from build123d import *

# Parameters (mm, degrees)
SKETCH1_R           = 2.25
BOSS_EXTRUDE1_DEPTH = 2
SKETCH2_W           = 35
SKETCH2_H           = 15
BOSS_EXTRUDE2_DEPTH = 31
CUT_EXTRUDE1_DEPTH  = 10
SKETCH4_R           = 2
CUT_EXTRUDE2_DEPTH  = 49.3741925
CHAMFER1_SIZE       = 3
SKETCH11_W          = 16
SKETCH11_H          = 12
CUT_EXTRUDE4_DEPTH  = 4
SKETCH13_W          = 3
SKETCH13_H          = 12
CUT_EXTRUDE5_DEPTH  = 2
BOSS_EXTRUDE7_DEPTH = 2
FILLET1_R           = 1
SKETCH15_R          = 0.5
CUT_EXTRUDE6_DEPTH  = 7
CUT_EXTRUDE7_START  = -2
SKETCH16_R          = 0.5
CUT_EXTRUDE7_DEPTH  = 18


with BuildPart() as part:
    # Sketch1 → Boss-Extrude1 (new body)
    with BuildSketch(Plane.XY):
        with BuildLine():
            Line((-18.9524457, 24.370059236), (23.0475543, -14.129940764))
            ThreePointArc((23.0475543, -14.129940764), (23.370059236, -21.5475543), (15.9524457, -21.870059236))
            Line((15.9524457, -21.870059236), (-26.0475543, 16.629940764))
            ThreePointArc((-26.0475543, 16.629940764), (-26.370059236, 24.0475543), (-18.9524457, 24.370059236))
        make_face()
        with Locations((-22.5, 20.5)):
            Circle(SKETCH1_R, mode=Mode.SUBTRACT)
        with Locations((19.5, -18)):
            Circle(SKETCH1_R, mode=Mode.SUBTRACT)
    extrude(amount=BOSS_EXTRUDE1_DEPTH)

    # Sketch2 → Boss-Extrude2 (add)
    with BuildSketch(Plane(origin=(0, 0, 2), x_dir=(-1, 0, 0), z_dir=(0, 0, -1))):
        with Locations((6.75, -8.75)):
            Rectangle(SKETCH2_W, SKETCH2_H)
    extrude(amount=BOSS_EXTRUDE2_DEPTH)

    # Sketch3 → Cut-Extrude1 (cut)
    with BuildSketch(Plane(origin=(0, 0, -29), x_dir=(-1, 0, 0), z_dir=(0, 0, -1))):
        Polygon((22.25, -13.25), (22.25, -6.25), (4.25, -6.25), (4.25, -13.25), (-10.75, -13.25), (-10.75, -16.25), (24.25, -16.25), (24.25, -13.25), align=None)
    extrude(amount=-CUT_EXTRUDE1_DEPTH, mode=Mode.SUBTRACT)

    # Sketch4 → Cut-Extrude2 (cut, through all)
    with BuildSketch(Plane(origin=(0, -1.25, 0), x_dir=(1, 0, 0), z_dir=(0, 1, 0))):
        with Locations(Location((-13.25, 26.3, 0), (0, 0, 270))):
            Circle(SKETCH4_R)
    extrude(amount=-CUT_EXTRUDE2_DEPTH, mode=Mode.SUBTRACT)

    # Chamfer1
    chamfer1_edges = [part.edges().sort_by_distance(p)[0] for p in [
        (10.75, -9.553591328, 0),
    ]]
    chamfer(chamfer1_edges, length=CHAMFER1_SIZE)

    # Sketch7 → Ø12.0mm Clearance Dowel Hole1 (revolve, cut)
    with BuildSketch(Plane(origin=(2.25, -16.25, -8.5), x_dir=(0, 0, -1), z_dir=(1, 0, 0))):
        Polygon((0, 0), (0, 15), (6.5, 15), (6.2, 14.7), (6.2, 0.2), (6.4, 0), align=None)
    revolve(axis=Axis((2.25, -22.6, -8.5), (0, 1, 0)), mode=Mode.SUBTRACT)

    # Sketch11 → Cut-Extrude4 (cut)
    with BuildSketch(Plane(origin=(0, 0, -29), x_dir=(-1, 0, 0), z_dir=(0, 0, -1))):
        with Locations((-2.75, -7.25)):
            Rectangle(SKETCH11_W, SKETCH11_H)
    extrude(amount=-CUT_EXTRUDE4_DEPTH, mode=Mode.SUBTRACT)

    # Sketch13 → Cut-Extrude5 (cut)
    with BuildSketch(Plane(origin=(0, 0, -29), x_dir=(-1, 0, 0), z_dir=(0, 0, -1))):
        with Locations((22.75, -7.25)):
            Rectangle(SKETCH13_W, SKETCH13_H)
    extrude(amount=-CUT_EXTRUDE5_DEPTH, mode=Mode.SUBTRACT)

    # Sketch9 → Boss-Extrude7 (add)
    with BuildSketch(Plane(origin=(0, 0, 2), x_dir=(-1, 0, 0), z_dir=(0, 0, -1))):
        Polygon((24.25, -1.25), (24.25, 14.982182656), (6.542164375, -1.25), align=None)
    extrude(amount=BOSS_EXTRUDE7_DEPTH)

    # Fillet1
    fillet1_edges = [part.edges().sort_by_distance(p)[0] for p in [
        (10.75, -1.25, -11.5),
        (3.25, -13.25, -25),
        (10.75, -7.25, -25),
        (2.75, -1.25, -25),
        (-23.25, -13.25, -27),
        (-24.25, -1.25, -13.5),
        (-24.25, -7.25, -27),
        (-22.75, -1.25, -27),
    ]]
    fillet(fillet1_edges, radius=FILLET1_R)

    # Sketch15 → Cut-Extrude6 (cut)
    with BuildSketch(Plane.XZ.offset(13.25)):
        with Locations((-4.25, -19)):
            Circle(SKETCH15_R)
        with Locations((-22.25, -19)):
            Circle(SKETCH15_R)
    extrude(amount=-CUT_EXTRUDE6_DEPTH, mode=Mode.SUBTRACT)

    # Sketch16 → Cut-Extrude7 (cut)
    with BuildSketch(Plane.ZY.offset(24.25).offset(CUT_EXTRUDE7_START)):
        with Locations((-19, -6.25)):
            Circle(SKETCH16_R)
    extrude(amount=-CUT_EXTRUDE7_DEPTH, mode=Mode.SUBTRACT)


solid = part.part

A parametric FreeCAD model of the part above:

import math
import FreeCAD as App
import Part
import Sketcher
from FreeCAD import Vector
Q = App.Units.Quantity


def edges_at(feature, points):
    """Names of the edges that pass closest to the given points."""
    edges = feature.Shape.Edges
    near = lambda p: min(range(len(edges)), key=lambda i: edges[i].distToShape(Part.Vertex(*p))[0])
    return sorted({f"Edge{near(p) + 1}" for p in points})


def add_polygon(sketch, points):
    """Adds a closed chain of lines whose ends are joined by coincident constraints."""
    first, n = sketch.GeometryCount, len(points)
    for a, b in zip(points, points[1:] + points[:1]):
        sketch.addGeometry(Part.LineSegment(App.Vector(*a, 0), App.Vector(*b, 0)), False)
    for i in range(n):
        sketch.addConstraint(Sketcher.Constraint("Coincident", first + i, 2, first + (i + 1) % n, 1))

doc = App.newDocument("Part")
params = doc.addObject("Spreadsheet::Sheet", "Params")
for row, (alias, value) in enumerate([
    ("sketch1_diameter", "4.5 mm"),
    ("sketch1_radius", "5.25 mm"),
    ("pad1_length", "2 mm"),
    ("sketch2_width", "35 mm"),
    ("sketch2_height", "15 mm"),
    ("pad2_length", "31 mm"),
    ("sketch3_width", "18 mm"),
    ("sketch3_width2", "15 mm"),
    ("sketch3_width3", "35 mm"),
    ("sketch3_height", "7 mm"),
    ("sketch3_height2", "3 mm"),
    ("pocket1_length", "10 mm"),
    ("sketch4_diameter", "4 mm"),
    ("chamfer_size", "3 mm"),
    ("sketch5_width", "15 mm"),
    ("sketch5_width2", "14.5 mm"),
    ("sketch5_height", "6.4 mm"),
    ("sketch5_height2", "6.5 mm"),
    ("groove_angle", "360 deg"),
    ("sketch6_width", "16 mm"),
    ("sketch6_height", "12 mm"),
    ("pocket3_length", "4 mm"),
    ("sketch7_width", "3 mm"),
    ("sketch7_height", "12 mm"),
    ("pocket4_length", "2 mm"),
    ("pad3_length", "2 mm"),
    ("fillet_radius", "1 mm"),
    ("sketch9_diameter", "1 mm"),
    ("pocket5_length", "7 mm"),
    ("sketch10_diameter", "1 mm"),
    ("pocket6_length", "18 mm"),
], start=1):
    params.set(f"A{row}", alias)
    params.set(f"B{row}", "=" + value)
    params.setAlias(f"B{row}", alias)

body = doc.addObject("PartDesign::Body", "Body")

# Sketch on XY plane
sketch1 = body.newObject("Sketcher::SketchObject", "Sketch")
sketch1.AttachmentSupport = (doc.getObject("XY_Plane"), [""])
sketch1.MapMode = "FlatFace"
sketch1.addGeometry(Part.LineSegment(Vector(23, -14.1, 0), Vector(-19, 24.4, 0)), False)
sketch1.addGeometry(Part.ArcOfCircle(Part.Circle(Vector(-22.5, 20.5, 0), Vector(0, 0, 1), 5.2), math.radians(47), math.radians(227)), False)
sketch1.addGeometry(Part.LineSegment(Vector(-26, 16.6, 0), Vector(16, -21.9, 0)), False)
sketch1.addGeometry(Part.ArcOfCircle(Part.Circle(Vector(19.5, -18, 0), Vector(0, 0, 1), 5.2), math.radians(-133), math.radians(47)), False)
sketch1.addGeometry(Part.Circle(Vector(19.5, -18, 0), Vector(0, 0, 1), 2.2), False)
sketch1.addGeometry(Part.Circle(Vector(-22.5, 20.5, 0), Vector(0, 0, 1), 2.2), False)
sketch1.addConstraint(Sketcher.Constraint("Tangent", 0, 2, 1, 1))
sketch1.addConstraint(Sketcher.Constraint("Tangent", 1, 2, 2, 1))
sketch1.addConstraint(Sketcher.Constraint("Tangent", 2, 2, 3, 1))
sketch1.addConstraint(Sketcher.Constraint("Tangent", 3, 2, 0, 1))
sketch1.addConstraint(Sketcher.Constraint("Coincident", 4, 3, 3, 3))
sketch1.addConstraint(Sketcher.Constraint("Coincident", 5, 3, 1, 3))
sketch1.addConstraint(Sketcher.Constraint("Equal", 1, 3))
sketch1.addConstraint(Sketcher.Constraint("Equal", 4, 5))
sketch1.addConstraint(Sketcher.Constraint("Diameter", 4, 4.5))
sketch1.addConstraint(Sketcher.Constraint("Radius", 1, 5.25))
sketch1.addConstraint(Sketcher.Constraint("DistanceY", 3, 3, -1, 1, 18.0))
sketch1.addConstraint(Sketcher.Constraint("DistanceX", 1, 3, 3, 3, 42.0))
sketch1.addConstraint(Sketcher.Constraint("DistanceX", 1, 3, -1, 1, 22.5))
sketch1.addConstraint(Sketcher.Constraint("DistanceY", -1, 1, 1, 3, 20.5))
sketch1.setExpression("Constraints[8]", "Params.sketch1_diameter")
sketch1.setExpression("Constraints[9]", "Params.sketch1_radius")
pad1 = body.newObject("PartDesign::Pad", "Pad")
pad1.Profile = sketch1
pad1.setExpression("Length", "Params.pad1_length")

# Sketch on XY plane
sketch2 = body.newObject("Sketcher::SketchObject", "Sketch001")
sketch2.AttachmentSupport = (doc.getObject("XY_Plane"), [""])
sketch2.MapMode = "FlatFace"
sketch2.AttachmentOffset = App.Placement(Vector(0, 0, 2), App.Rotation())
add_polygon(sketch2, [(11, -1), (11, -16), (-24, -16), (-24, -1)])  # lines 0-3
sketch2.addConstraint(Sketcher.Constraint("Vertical", 0))
sketch2.addConstraint(Sketcher.Constraint("Horizontal", 1))
sketch2.addConstraint(Sketcher.Constraint("Vertical", 2))
sketch2.addConstraint(Sketcher.Constraint("Horizontal", 3))
sketch2.addConstraint(Sketcher.Constraint("DistanceX", 1, 2, 1, 1, 35.0))
sketch2.addConstraint(Sketcher.Constraint("DistanceY", 0, 2, 0, 1, 15.0))
sketch2.addConstraint(Sketcher.Constraint("DistanceX", -1, 1, 0, 2, 10.75))
sketch2.addConstraint(Sketcher.Constraint("DistanceY", 0, 2, -1, 1, 16.25))
sketch2.setExpression("Constraints[8]", "Params.sketch2_width")
sketch2.setExpression("Constraints[9]", "Params.sketch2_height")
pad2 = body.newObject("PartDesign::Pad", "Pad001")
pad2.Profile = sketch2
pad2.setExpression("Length", "Params.pad2_length")
pad2.Reversed = True

# Sketch on XY plane
sketch3 = body.newObject("Sketcher::SketchObject", "Sketch002")
sketch3.AttachmentSupport = (doc.getObject("XY_Plane"), [""])
sketch3.MapMode = "FlatFace"
sketch3.AttachmentOffset = App.Placement(Vector(0, 0, -29), App.Rotation())
add_polygon(sketch3, [(-22.2, -13.2), (-22.2, -6.2), (-4.2, -6.2), (-4.2, -13.2), (10.8, -13.2), (10.8, -16.2), (-24.2, -16.2), (-24.2, -13.2)])  # lines 0-7
sketch3.addConstraint(Sketcher.Constraint("Vertical", 0))
sketch3.addConstraint(Sketcher.Constraint("Horizontal", 1))
sketch3.addConstraint(Sketcher.Constraint("Vertical", 2))
sketch3.addConstraint(Sketcher.Constraint("Horizontal", 3))
sketch3.addConstraint(Sketcher.Constraint("Vertical", 4))
sketch3.addConstraint(Sketcher.Constraint("Horizontal", 5))
sketch3.addConstraint(Sketcher.Constraint("Vertical", 6))
sketch3.addConstraint(Sketcher.Constraint("Horizontal", 7))
sketch3.addConstraint(Sketcher.Constraint("Horizontal", 3, 2, 6, 2))
sketch3.addConstraint(Sketcher.Constraint("DistanceX", 1, 1, 1, 2, 18.0))
sketch3.addConstraint(Sketcher.Constraint("DistanceX", 3, 1, 3, 2, 15.0))
sketch3.addConstraint(Sketcher.Constraint("DistanceX", 5, 2, 5, 1, 35.0))
sketch3.addConstraint(Sketcher.Constraint("DistanceY", 0, 1, 0, 2, 7.0))
sketch3.addConstraint(Sketcher.Constraint("DistanceY", 4, 2, 4, 1, 3.0))
sketch3.addConstraint(Sketcher.Constraint("DistanceX", 0, 2, -1, 1, 22.25))
sketch3.addConstraint(Sketcher.Constraint("DistanceY", 0, 2, -1, 1, 6.25))
sketch3.setExpression("Constraints[17]", "Params.sketch3_width")
sketch3.setExpression("Constraints[18]", "Params.sketch3_width2")
sketch3.setExpression("Constraints[19]", "Params.sketch3_width3")
sketch3.setExpression("Constraints[20]", "Params.sketch3_height")
sketch3.setExpression("Constraints[21]", "Params.sketch3_height2")
pocket1 = body.newObject("PartDesign::Pocket", "Pocket")
pocket1.Profile = sketch3
pocket1.setExpression("Length", "Params.pocket1_length")
pocket1.Reversed = True

# Sketch on XZ plane
sketch4 = body.newObject("Sketcher::SketchObject", "Sketch003")
sketch4.AttachmentSupport = (doc.getObject("XZ_Plane"), [""])
sketch4.MapMode = "FlatFace"
sketch4.AttachmentOffset = App.Placement(Vector(0, 0, 1.25), App.Rotation())
sketch4.addGeometry(Part.Circle(Vector(-13.2, -26.3, 0), Vector(0, 0, 1), 2), False)
sketch4.addConstraint(Sketcher.Constraint("Diameter", 0, 4.0))
sketch4.addConstraint(Sketcher.Constraint("DistanceY", 0, 3, -1, 1, 26.3))
sketch4.addConstraint(Sketcher.Constraint("DistanceX", 0, 3, -1, 1, 13.25))
sketch4.setExpression("Constraints[0]", "Params.sketch4_diameter")
pocket2 = body.newObject("PartDesign::Pocket", "Pocket001")
pocket2.Profile = sketch4
pocket2.Type = "ThroughAll"
pocket2.Reversed = True
doc.recompute()

chamfer = body.newObject("PartDesign::Chamfer", "Chamfer")
chamfer.Base = (pocket2, edges_at(pocket2, [(10.75, -9.554, 0)]))
chamfer.setExpression("Size", "Params.chamfer_size")

# Sketch on YZ plane
sketch5 = body.newObject("Sketcher::SketchObject", "Sketch004")
sketch5.AttachmentSupport = (doc.getObject("YZ_Plane"), [""])
sketch5.MapMode = "FlatFace"
sketch5.AttachmentOffset = App.Placement(Vector(0, 0, 2.25), App.Rotation())
add_polygon(sketch5, [(-1.25, -8.5), (-16.25, -8.5), (-16.25, -14.9), (-16.05, -14.7), (-1.55, -14.7), (-1.25, -15)])  # lines 0-5
sketch5.addGeometry(Part.LineSegment(Vector(-16.25, -8.5, 0), Vector(-1.25, -8.5, 0)), True)  # axis
sketch5.addConstraint(Sketcher.Constraint("Horizontal", 0))
sketch5.addConstraint(Sketcher.Constraint("Vertical", 1))
sketch5.addConstraint(Sketcher.Constraint("Horizontal", 3))
sketch5.addConstraint(Sketcher.Constraint("Vertical", 5))
sketch5.addConstraint(Sketcher.Constraint("Horizontal", 6))
sketch5.addConstraint(Sketcher.Constraint("Coincident", 6, 1, 0, 2))
sketch5.addConstraint(Sketcher.Constraint("Perpendicular", 2, 4))
sketch5.addConstraint(Sketcher.Constraint("Vertical", 4, 2, 6, 2))
sketch5.addConstraint(Sketcher.Constraint("DistanceX", 0, 2, 0, 1, 15.0))
sketch5.addConstraint(Sketcher.Constraint("Angle", 2, Q("45 deg")))
sketch5.addConstraint(Sketcher.Constraint("DistanceX", 3, 1, 3, 2, 14.5))
sketch5.addConstraint(Sketcher.Constraint("DistanceY", 1, 2, 1, 1, 6.4))
sketch5.addConstraint(Sketcher.Constraint("DistanceY", 5, 1, 5, 2, 6.5))
sketch5.addConstraint(Sketcher.Constraint("DistanceY", 4, 2, -1, 1, 15.0))
sketch5.addConstraint(Sketcher.Constraint("DistanceX", 0, 2, -1, 1, 16.25))
sketch5.setExpression("Constraints[14]", "Params.sketch5_width")
sketch5.setExpression("Constraints[16]", "Params.sketch5_width2")
sketch5.setExpression("Constraints[17]", "Params.sketch5_height")
sketch5.setExpression("Constraints[18]", "Params.sketch5_height2")
groove = body.newObject("PartDesign::Groove", "Groove")
groove.Profile = sketch5
groove.ReferenceAxis = (sketch5, ["Axis0"])
groove.setExpression("Angle", "Params.groove_angle")

# Sketch on XY plane
sketch6 = body.newObject("Sketcher::SketchObject", "Sketch005")
sketch6.AttachmentSupport = (doc.getObject("XY_Plane"), [""])
sketch6.MapMode = "FlatFace"
sketch6.AttachmentOffset = App.Placement(Vector(0, 0, -29), App.Rotation())
add_polygon(sketch6, [(11, -1), (11, -13), (-5, -13), (-5, -1)])  # lines 0-3
sketch6.addConstraint(Sketcher.Constraint("Vertical", 0))
sketch6.addConstraint(Sketcher.Constraint("Horizontal", 1))
sketch6.addConstraint(Sketcher.Constraint("Vertical", 2))
sketch6.addConstraint(Sketcher.Constraint("Horizontal", 3))
sketch6.addConstraint(Sketcher.Constraint("DistanceX", 1, 2, 1, 1, 16.0))
sketch6.addConstraint(Sketcher.Constraint("DistanceY", 0, 2, 0, 1, 12.0))
sketch6.addConstraint(Sketcher.Constraint("DistanceX", -1, 1, 0, 2, 10.75))
sketch6.addConstraint(Sketcher.Constraint("DistanceY", 0, 2, -1, 1, 13.25))
sketch6.setExpression("Constraints[8]", "Params.sketch6_width")
sketch6.setExpression("Constraints[9]", "Params.sketch6_height")
pocket3 = body.newObject("PartDesign::Pocket", "Pocket002")
pocket3.Profile = sketch6
pocket3.setExpression("Length", "Params.pocket3_length")
pocket3.Reversed = True

# Sketch on XY plane
sketch7 = body.newObject("Sketcher::SketchObject", "Sketch006")
sketch7.AttachmentSupport = (doc.getObject("XY_Plane"), [""])
sketch7.MapMode = "FlatFace"
sketch7.AttachmentOffset = App.Placement(Vector(0, 0, -29), App.Rotation())
add_polygon(sketch7, [(-21.2, -1.2), (-21.2, -13.2), (-24.2, -13.2), (-24.2, -1.2)])  # lines 0-3
sketch7.addConstraint(Sketcher.Constraint("Vertical", 0))
sketch7.addConstraint(Sketcher.Constraint("Horizontal", 1))
sketch7.addConstraint(Sketcher.Constraint("Vertical", 2))
sketch7.addConstraint(Sketcher.Constraint("Horizontal", 3))
sketch7.addConstraint(Sketcher.Constraint("DistanceX", 1, 2, 1, 1, 3.0))
sketch7.addConstraint(Sketcher.Constraint("DistanceY", 0, 2, 0, 1, 12.0))
sketch7.addConstraint(Sketcher.Constraint("DistanceX", 0, 2, -1, 1, 21.25))
sketch7.addConstraint(Sketcher.Constraint("DistanceY", 0, 2, -1, 1, 13.25))
sketch7.setExpression("Constraints[8]", "Params.sketch7_width")
sketch7.setExpression("Constraints[9]", "Params.sketch7_height")
pocket4 = body.newObject("PartDesign::Pocket", "Pocket003")
pocket4.Profile = sketch7
pocket4.setExpression("Length", "Params.pocket4_length")
pocket4.Reversed = True

# Sketch on XY plane
sketch8 = body.newObject("Sketcher::SketchObject", "Sketch007")
sketch8.AttachmentSupport = (doc.getObject("XY_Plane"), [""])
sketch8.MapMode = "FlatFace"
sketch8.AttachmentOffset = App.Placement(Vector(0, 0, 2), App.Rotation())
add_polygon(sketch8, [(-24, -1), (-24, 15), (-7, -1)])  # lines 0-2
sketch8.addConstraint(Sketcher.Constraint("Vertical", 0))
sketch8.addConstraint(Sketcher.Constraint("Horizontal", 2))
sketch8.addConstraint(Sketcher.Constraint("DistanceX", 0, 2, -1, 1, 24.25))
sketch8.addConstraint(Sketcher.Constraint("DistanceY", 1, 2, -1, 1, 1.25))
sketch8.addConstraint(Sketcher.Constraint("Distance", 1, 24.02189))
sketch8.addConstraint(Sketcher.Constraint("DistanceX", 2, 2, 2, 1, 17.707836))
pad3 = body.newObject("PartDesign::Pad", "Pad002")
pad3.Profile = sketch8
pad3.setExpression("Length", "Params.pad3_length")
pad3.Reversed = True
doc.recompute()

fillet = body.newObject("PartDesign::Fillet", "Fillet")
fillet.Base = (pad3, edges_at(pad3, [
    (10.75, -1.25, -11.5),
    (3.25, -13.25, -25),
    (10.75, -7.25, -25),
    (2.75, -1.25, -25),
    (-23.25, -13.25, -27),
    (-24.25, -1.25, -13.5),
    (-24.25, -7.25, -27),
    (-22.75, -1.25, -27),
]))
fillet.setExpression("Radius", "Params.fillet_radius")

# Sketch on XZ plane
sketch9 = body.newObject("Sketcher::SketchObject", "Sketch008")
sketch9.AttachmentSupport = (doc.getObject("XZ_Plane"), [""])
sketch9.MapMode = "FlatFace"
sketch9.AttachmentOffset = App.Placement(Vector(0, 0, 13.25), App.Rotation())
sketch9.addGeometry(Part.Circle(Vector(-4.2, -19, 0), Vector(0, 0, 1), 0.5), False)
sketch9.addGeometry(Part.Circle(Vector(-22.2, -19, 0), Vector(0, 0, 1), 0.5), False)
sketch9.addConstraint(Sketcher.Constraint("Equal", 0, 1))
sketch9.addConstraint(Sketcher.Constraint("Horizontal", 0, 3, 1, 3))
sketch9.addConstraint(Sketcher.Constraint("Diameter", 0, 1.0))
sketch9.addConstraint(Sketcher.Constraint("DistanceY", 0, 3, -1, 1, 19.0))
sketch9.addConstraint(Sketcher.Constraint("DistanceX", 1, 3, 0, 3, 18.0))
sketch9.addConstraint(Sketcher.Constraint("DistanceX", 0, 3, -1, 1, 4.25))
sketch9.setExpression("Constraints[2]", "Params.sketch9_diameter")
pocket5 = body.newObject("PartDesign::Pocket", "Pocket004")
pocket5.Profile = sketch9
pocket5.setExpression("Length", "Params.pocket5_length")

# Sketch on YZ plane
sketch10 = body.newObject("Sketcher::SketchObject", "Sketch009")
sketch10.AttachmentSupport = (doc.getObject("YZ_Plane"), [""])
sketch10.MapMode = "FlatFace"
sketch10.AttachmentOffset = App.Placement(Vector(0, 0, -22.25), App.Rotation())
sketch10.addGeometry(Part.Circle(Vector(-6.2, -19, 0), Vector(0, 0, 1), 0.5), False)
sketch10.addConstraint(Sketcher.Constraint("Diameter", 0, 1.0))
sketch10.addConstraint(Sketcher.Constraint("DistanceY", 0, 3, -1, 1, 19.0))
sketch10.addConstraint(Sketcher.Constraint("DistanceX", 0, 3, -1, 1, 6.25))
sketch10.setExpression("Constraints[0]", "Params.sketch10_diameter")
pocket6 = body.newObject("PartDesign::Pocket", "Pocket005")
pocket6.Profile = sketch10
pocket6.setExpression("Length", "Params.pocket6_length")
pocket6.Reversed = True

doc.recompute()
